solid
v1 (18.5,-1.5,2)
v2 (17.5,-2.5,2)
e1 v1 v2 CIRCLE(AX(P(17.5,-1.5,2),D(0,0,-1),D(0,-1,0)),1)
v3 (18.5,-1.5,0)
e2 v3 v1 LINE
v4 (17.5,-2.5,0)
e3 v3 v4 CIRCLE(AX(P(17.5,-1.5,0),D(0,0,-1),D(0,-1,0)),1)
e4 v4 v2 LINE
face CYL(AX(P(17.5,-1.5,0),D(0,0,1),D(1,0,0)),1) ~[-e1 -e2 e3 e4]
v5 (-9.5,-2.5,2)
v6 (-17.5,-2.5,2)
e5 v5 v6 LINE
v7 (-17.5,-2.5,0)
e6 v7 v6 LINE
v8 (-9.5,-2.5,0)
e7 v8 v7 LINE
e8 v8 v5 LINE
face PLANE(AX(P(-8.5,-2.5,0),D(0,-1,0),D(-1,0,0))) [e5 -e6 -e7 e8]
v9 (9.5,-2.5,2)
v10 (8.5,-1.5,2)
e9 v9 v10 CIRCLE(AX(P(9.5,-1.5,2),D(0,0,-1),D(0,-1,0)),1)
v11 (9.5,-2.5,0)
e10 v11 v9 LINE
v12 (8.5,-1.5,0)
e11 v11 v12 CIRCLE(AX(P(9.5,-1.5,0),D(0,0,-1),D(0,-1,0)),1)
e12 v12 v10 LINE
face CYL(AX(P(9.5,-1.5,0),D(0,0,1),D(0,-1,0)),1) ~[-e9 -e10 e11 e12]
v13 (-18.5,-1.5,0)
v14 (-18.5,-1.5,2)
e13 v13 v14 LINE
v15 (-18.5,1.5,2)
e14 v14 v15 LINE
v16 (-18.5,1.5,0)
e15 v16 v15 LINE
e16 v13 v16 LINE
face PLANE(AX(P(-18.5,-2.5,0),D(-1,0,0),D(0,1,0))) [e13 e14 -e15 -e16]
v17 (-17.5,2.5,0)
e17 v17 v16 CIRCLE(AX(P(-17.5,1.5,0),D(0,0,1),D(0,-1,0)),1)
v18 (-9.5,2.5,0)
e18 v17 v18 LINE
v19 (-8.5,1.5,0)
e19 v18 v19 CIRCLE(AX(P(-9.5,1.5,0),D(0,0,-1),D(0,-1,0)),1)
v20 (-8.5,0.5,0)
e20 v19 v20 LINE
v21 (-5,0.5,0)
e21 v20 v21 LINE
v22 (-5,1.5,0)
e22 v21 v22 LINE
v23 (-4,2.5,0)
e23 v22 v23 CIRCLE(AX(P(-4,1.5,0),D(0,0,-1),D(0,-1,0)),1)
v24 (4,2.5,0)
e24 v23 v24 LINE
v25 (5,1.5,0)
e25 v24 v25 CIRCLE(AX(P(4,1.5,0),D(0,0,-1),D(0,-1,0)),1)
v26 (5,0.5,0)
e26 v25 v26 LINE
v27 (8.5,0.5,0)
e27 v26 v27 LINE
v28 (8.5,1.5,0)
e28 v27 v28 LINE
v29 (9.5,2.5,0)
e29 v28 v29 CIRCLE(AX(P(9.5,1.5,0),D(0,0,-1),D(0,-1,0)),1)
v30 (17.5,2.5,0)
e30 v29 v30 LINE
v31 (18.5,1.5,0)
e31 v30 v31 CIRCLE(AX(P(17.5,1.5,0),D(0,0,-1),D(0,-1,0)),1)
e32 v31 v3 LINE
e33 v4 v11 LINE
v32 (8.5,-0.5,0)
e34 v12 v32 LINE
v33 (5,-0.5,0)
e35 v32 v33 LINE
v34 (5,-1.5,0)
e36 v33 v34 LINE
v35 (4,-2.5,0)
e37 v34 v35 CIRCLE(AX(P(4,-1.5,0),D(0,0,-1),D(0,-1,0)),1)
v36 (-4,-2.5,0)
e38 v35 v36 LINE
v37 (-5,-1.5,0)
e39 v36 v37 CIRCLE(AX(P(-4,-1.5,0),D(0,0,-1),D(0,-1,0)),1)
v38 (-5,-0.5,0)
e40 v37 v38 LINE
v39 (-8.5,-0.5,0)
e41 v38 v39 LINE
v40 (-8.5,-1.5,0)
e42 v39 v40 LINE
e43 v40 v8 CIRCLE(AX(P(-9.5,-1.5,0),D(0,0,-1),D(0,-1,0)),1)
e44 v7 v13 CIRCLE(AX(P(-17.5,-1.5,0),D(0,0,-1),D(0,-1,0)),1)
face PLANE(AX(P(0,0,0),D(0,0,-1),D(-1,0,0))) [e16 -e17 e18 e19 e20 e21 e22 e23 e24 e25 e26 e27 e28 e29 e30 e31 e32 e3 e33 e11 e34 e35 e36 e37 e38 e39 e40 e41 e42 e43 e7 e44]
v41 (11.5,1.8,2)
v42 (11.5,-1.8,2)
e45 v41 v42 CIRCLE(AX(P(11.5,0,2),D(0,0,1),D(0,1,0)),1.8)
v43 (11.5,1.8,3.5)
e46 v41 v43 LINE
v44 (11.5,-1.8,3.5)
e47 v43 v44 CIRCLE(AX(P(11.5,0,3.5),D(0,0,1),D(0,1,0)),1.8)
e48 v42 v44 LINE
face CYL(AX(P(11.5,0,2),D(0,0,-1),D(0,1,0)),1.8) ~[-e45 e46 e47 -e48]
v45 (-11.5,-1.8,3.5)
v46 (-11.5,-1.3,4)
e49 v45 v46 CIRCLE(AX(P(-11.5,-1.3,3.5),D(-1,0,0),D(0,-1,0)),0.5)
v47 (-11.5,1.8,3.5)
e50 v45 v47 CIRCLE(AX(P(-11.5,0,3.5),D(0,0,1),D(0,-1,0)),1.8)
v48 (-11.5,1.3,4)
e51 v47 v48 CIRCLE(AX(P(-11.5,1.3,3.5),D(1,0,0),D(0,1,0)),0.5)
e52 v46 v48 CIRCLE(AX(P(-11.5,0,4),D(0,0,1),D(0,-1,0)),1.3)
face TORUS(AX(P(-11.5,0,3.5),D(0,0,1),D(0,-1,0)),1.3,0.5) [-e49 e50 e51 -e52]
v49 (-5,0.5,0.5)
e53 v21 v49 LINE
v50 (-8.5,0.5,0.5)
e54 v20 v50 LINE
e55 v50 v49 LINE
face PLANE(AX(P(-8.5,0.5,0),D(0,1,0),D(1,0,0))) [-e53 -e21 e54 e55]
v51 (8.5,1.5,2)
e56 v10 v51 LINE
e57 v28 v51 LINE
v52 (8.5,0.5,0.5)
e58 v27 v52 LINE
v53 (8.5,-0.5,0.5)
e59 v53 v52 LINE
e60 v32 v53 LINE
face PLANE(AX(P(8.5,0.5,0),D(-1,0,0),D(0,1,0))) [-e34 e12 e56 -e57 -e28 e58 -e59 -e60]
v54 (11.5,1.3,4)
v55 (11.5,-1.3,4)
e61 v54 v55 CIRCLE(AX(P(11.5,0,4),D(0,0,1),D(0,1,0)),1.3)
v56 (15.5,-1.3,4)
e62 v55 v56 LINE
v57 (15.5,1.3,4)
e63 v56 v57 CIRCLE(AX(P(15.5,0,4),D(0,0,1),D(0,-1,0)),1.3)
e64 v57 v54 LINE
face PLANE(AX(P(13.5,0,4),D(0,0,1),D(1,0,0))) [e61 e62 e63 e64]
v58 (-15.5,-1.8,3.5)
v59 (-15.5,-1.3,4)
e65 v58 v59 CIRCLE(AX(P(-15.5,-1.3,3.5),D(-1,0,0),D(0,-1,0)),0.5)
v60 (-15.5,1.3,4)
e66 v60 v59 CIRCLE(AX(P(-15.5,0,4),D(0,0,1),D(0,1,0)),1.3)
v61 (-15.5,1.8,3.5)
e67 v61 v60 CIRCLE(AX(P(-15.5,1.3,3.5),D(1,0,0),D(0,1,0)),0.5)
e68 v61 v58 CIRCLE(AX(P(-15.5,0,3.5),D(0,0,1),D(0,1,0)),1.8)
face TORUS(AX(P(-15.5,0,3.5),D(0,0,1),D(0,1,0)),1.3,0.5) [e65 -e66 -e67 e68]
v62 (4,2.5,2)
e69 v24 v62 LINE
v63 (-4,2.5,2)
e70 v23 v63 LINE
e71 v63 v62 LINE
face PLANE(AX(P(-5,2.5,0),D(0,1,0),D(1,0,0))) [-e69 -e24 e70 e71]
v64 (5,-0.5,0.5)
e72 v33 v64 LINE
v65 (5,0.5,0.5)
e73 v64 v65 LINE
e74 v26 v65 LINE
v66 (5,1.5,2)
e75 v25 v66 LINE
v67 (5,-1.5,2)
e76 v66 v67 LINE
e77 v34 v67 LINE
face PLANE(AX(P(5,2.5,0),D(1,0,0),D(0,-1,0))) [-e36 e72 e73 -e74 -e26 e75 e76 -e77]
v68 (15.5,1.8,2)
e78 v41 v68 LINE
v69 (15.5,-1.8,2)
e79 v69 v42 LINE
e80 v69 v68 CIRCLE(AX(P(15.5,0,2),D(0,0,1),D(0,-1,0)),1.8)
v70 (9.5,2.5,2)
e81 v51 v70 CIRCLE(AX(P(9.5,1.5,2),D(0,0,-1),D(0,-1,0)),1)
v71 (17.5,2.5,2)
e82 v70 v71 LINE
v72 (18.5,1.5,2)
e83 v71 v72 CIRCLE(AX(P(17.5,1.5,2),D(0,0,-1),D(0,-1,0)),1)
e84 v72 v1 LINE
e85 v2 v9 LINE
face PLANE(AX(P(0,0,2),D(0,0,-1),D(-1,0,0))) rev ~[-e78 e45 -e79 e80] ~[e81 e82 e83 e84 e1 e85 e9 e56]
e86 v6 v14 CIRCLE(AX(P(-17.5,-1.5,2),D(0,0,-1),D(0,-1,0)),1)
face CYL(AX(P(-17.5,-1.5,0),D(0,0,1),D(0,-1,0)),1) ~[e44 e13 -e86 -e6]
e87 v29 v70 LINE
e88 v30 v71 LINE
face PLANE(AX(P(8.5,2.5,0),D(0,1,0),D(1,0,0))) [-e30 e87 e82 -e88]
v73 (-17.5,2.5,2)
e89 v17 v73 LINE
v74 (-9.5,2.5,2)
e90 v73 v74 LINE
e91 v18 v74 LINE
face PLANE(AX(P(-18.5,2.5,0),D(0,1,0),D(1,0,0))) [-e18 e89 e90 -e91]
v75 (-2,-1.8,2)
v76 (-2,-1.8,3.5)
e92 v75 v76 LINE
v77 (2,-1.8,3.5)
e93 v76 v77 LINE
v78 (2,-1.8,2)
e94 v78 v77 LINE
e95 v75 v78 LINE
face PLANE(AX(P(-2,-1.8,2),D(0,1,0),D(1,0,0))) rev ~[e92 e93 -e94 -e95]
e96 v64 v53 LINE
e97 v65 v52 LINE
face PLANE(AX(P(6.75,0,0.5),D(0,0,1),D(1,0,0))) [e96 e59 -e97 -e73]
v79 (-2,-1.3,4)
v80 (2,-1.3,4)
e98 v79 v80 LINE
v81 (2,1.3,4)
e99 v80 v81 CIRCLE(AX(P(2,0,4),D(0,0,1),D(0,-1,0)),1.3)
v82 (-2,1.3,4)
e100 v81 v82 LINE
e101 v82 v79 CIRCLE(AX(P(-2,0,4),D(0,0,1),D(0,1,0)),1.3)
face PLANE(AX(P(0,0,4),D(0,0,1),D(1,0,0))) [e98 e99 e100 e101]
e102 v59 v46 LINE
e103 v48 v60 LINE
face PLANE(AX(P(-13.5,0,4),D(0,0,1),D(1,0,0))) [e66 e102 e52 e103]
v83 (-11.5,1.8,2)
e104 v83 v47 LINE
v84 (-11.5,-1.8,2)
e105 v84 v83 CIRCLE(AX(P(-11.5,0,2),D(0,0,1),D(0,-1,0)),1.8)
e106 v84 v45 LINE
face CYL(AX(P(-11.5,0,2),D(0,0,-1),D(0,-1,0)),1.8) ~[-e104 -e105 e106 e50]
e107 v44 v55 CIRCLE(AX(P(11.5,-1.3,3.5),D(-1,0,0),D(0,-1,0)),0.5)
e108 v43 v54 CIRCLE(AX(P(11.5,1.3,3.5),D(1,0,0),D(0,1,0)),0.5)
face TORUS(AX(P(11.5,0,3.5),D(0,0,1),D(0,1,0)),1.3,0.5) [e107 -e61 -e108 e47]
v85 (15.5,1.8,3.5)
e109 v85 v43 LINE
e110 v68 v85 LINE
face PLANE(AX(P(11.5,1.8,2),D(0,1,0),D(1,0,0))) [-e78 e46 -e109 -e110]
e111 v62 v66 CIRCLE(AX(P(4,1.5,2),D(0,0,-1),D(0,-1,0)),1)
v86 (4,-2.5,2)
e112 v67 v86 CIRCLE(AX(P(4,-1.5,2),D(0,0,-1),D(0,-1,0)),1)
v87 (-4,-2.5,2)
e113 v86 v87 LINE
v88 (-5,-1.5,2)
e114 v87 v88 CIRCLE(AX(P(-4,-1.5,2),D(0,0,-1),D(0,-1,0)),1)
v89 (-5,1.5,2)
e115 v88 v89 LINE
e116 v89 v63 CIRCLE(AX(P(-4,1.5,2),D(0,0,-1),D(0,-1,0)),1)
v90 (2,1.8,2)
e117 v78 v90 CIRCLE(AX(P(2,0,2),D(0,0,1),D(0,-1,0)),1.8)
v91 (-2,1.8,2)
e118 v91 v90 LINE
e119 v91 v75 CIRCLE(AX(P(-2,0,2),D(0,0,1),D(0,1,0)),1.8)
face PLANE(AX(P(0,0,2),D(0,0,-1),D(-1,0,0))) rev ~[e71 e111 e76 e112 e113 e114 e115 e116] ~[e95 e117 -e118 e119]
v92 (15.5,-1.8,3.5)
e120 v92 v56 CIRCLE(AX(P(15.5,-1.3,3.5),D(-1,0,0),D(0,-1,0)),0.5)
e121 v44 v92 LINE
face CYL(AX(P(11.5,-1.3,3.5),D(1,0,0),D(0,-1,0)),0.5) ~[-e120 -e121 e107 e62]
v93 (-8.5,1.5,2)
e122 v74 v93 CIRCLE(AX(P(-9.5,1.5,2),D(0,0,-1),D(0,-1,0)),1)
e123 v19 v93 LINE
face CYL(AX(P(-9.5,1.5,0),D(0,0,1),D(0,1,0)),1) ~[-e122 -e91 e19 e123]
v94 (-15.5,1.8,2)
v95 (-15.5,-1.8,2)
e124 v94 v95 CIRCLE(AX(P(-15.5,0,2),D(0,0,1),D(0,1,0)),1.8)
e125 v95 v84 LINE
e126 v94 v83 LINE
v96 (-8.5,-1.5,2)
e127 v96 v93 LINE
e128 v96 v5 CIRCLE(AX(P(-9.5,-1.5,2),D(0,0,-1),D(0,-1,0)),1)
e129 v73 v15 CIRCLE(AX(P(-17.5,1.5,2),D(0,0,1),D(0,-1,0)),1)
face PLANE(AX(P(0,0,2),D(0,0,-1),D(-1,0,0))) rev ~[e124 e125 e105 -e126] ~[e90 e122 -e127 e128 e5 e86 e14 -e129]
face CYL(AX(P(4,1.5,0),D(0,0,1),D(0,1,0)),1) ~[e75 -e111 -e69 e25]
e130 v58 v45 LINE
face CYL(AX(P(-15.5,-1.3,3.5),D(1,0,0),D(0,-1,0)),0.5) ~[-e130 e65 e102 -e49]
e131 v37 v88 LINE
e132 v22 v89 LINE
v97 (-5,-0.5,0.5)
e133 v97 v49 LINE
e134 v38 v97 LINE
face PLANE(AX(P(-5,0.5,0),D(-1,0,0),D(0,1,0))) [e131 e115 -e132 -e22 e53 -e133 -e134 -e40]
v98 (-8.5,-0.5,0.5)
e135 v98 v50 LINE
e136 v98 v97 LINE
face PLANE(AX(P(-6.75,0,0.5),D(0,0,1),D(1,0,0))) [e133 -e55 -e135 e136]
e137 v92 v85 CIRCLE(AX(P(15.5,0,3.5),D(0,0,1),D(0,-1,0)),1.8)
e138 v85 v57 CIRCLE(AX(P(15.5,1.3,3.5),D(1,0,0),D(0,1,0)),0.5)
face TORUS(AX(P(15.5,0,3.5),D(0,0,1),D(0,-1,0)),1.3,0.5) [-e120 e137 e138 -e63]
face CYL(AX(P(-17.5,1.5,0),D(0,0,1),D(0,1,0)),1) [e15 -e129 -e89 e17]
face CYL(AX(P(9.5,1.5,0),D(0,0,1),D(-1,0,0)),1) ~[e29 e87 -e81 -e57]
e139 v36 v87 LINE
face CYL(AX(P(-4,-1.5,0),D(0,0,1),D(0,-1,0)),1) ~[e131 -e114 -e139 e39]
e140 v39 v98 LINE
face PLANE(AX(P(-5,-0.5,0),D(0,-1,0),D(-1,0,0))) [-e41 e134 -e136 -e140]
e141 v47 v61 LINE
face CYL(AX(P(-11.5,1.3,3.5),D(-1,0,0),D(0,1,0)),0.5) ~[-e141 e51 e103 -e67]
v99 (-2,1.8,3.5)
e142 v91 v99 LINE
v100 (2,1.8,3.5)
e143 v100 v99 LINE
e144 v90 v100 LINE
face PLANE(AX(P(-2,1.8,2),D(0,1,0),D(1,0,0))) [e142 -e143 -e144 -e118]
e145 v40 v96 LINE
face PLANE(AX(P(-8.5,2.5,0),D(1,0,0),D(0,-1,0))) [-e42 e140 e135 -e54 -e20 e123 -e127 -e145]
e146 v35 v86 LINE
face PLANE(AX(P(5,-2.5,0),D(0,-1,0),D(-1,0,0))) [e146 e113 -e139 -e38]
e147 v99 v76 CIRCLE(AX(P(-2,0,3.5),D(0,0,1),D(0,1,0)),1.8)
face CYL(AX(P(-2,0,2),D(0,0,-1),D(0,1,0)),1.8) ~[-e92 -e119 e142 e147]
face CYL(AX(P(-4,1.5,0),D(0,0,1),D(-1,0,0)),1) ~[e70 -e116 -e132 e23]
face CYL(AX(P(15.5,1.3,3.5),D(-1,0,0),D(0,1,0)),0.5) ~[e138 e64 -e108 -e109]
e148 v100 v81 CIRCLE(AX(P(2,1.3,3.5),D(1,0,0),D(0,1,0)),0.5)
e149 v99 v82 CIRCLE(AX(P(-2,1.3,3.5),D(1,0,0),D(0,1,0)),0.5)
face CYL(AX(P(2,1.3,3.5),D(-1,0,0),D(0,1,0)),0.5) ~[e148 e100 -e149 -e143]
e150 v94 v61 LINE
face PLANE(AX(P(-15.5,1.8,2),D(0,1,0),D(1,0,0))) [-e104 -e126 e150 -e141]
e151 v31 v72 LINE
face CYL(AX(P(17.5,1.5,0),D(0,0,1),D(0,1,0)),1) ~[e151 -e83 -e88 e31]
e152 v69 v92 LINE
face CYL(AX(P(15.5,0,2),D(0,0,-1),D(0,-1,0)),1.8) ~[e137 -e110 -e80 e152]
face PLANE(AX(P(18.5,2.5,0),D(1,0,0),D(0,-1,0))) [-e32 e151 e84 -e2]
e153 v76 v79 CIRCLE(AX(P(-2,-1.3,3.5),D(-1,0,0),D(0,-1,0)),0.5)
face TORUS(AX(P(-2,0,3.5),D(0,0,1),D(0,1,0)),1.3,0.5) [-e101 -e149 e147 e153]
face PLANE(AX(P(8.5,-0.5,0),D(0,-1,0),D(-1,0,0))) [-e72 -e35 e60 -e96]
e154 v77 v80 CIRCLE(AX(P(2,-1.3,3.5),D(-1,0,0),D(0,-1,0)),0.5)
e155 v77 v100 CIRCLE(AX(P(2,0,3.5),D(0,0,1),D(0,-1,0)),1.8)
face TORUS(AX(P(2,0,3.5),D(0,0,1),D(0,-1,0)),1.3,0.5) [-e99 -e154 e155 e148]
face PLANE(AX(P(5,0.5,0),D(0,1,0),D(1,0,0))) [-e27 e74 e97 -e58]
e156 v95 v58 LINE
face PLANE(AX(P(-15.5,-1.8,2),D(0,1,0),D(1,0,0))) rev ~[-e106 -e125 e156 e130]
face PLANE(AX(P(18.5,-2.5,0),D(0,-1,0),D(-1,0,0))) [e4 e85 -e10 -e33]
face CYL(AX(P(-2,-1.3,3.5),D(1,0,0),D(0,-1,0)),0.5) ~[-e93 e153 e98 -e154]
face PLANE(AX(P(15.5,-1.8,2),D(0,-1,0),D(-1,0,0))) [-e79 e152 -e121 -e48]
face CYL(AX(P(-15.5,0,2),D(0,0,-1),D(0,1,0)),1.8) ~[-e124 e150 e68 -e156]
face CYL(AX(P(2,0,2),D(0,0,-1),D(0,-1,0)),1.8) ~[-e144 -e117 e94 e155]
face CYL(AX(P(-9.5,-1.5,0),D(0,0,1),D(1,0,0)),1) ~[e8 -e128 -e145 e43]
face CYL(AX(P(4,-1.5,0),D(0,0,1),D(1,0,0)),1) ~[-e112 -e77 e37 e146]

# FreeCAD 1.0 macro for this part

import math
import FreeCAD as App
import Part
import Sketcher


def edges_at(feature, points):
    """Names of the edges that pass closest to the given points."""
    edges = feature.Shape.Edges
    near = lambda p: min(range(len(edges)), key=lambda i: edges[i].distToShape(Part.Vertex(*p))[0])
    return sorted({f"Edge{near(p) + 1}" for p in points})


def add_polygon(sketch, points):
    """Adds a closed chain of lines whose ends are joined by coincident constraints."""
    first, n = sketch.GeometryCount, len(points)
    for a, b in zip(points, points[1:] + points[:1]):
        sketch.addGeometry(Part.LineSegment(App.Vector(*a, 0), App.Vector(*b, 0)), False)
    for i in range(n):
        sketch.addConstraint(Sketcher.Constraint("Coincident", first + i, 2, first + (i + 1) % n, 1))

doc = App.newDocument("Part")
body = doc.addObject("PartDesign::Body", "Body")

sketch1 = body.newObject("Sketcher::SketchObject", "Sketch")
sketch1.AttachmentSupport = (doc.getObject("XY_Plane"), [""])
sketch1.MapMode = "FlatFace"
add_polygon(sketch1, [(-8.5, 2.5), (-18.5, 2.5), (-18.5, -2.5), (-8.5, -2.5), (-8.5, -0.5), (-5, -0.5), (-5, -2.5), (5, -2.5), (5, -0.5), (8.5, -0.5), (8.5, -2.5), (18.5, -2.5), (18.5, 2.5), (8.5, 2.5), (8.5, 0.5), (5, 0.5), (5, 2.5), (-5, 2.5), (-5, 0.5), (-8.5, 0.5)])
sketch1.addConstraint(Sketcher.Constraint("Horizontal", 0))
sketch1.addConstraint(Sketcher.Constraint("Vertical", 1))
sketch1.addConstraint(Sketcher.Constraint("Horizontal", 2))
sketch1.addConstraint(Sketcher.Constraint("Vertical", 3))
sketch1.addConstraint(Sketcher.Constraint("Horizontal", 4))
sketch1.addConstraint(Sketcher.Constraint("Vertical", 5))
sketch1.addConstraint(Sketcher.Constraint("Horizontal", 6))
sketch1.addConstraint(Sketcher.Constraint("Vertical", 7))
sketch1.addConstraint(Sketcher.Constraint("Horizontal", 8))
sketch1.addConstraint(Sketcher.Constraint("Vertical", 9))
sketch1.addConstraint(Sketcher.Constraint("Horizontal", 10))
sketch1.addConstraint(Sketcher.Constraint("Vertical", 11))
sketch1.addConstraint(Sketcher.Constraint("Horizontal", 12))
sketch1.addConstraint(Sketcher.Constraint("Vertical", 13))
sketch1.addConstraint(Sketcher.Constraint("Horizontal", 14))
sketch1.addConstraint(Sketcher.Constraint("Vertical", 15))
sketch1.addConstraint(Sketcher.Constraint("Horizontal", 16))
sketch1.addConstraint(Sketcher.Constraint("Vertical", 17))
sketch1.addConstraint(Sketcher.Constraint("Horizontal", 18))
sketch1.addConstraint(Sketcher.Constraint("Vertical", 19))
sketch1.addConstraint(Sketcher.Constraint("Symmetric", 0, 2, 10, 2, -1, 1))
sketch1.addConstraint(Sketcher.Constraint("Symmetric", 2, 2, 12, 2, -1, 1))
sketch1.addConstraint(Sketcher.Constraint("Symmetric", 4, 2, 14, 2, -1, 1))
sketch1.addConstraint(Sketcher.Constraint("Symmetric", 6, 2, 16, 2, -1, 1))
sketch1.addConstraint(Sketcher.Constraint("Symmetric", 8, 2, 18, 2, -1, 1))
sketch1.addConstraint(Sketcher.Constraint("Symmetric", 4, 2, 7, 2, -2))
sketch1.addConstraint(Sketcher.Constraint("Symmetric", 2, 2, 9, 2, -2))
sketch1.addConstraint(Sketcher.Constraint("Horizontal", 2, 2, 5, 2))
sketch1.addConstraint(Sketcher.Constraint("Equal", 2, 6))
sketch1.addConstraint(Sketcher.Constraint("DistanceX", 0, 2, 0, 1, 10.0))
sketch1.addConstraint(Sketcher.Constraint("DistanceY", 1, 2, 1, 1, 5.0))
sketch1.addConstraint(Sketcher.Constraint("DistanceY", 3, 1, 3, 2, 2.0))
sketch1.addConstraint(Sketcher.Constraint("DistanceX", 4, 1, 4, 2, 3.5))
pad1 = body.newObject("PartDesign::Pad", "Pad")
pad1.Profile = sketch1
pad1.Length = 2
doc.recompute()

fillet = body.newObject("PartDesign::Fillet", "Fillet")
fillet.Base = (pad1, edges_at(pad1, [
    (-18.5, 2.5, 1),
    (-5, 2.5, 1),
    (8.5, 2.5, 1),
    (-18.5, -2.5, 1),
    (-5, -2.5, 1),
    (8.5, -2.5, 1),
    (-8.5, 2.5, 1),
    (-8.5, -2.5, 1),
    (5, 2.5, 1),
    (5, -2.5, 1),
    (18.5, 2.5, 1),
    (18.5, -2.5, 1),
]))
fillet.Radius = 1

sketch2 = body.newObject("Sketcher::SketchObject", "Sketch001")
sketch2.AttachmentSupport = (doc.getObject("XY_Plane"), [""])
sketch2.MapMode = "FlatFace"
sketch2.AttachmentOffset = App.Placement(App.Vector(0, 0, 2), App.Rotation())
add_polygon(sketch2, [(-8.5, 0.5), (-8.5, -0.5), (-5, -0.5), (-5, 0.5)])
add_polygon(sketch2, [(5, 0.5), (5, -0.5), (8.5, -0.5), (8.5, 0.5)])
sketch2.addConstraint(Sketcher.Constraint("Vertical", 0))
sketch2.addConstraint(Sketcher.Constraint("Horizontal", 1))
sketch2.addConstraint(Sketcher.Constraint("Vertical", 2))
sketch2.addConstraint(Sketcher.Constraint("Horizontal", 3))
sketch2.addConstraint(Sketcher.Constraint("Vertical", 4))
sketch2.addConstraint(Sketcher.Constraint("Horizontal", 5))
sketch2.addConstraint(Sketcher.Constraint("Vertical", 6))
sketch2.addConstraint(Sketcher.Constraint("Horizontal", 7))
sketch2.addConstraint(Sketcher.Constraint("Symmetric", 2, 2, 4, 2, -1, 1))
sketch2.addConstraint(Sketcher.Constraint("Symmetric", 0, 2, 6, 2, -1, 1))
sketch2.addConstraint(Sketcher.Constraint("Horizontal", 1, 2, 4, 2))
sketch2.addConstraint(Sketcher.Constraint("DistanceY", 0, 2, 0, 1, 1.0))
sketch2.addConstraint(Sketcher.Constraint("DistanceX", 1, 1, 1, 2, 3.5))
sketch2.addConstraint(Sketcher.Constraint("DistanceX", 1, 2, -1, 1, 5.0))
pocket1 = body.newObject("PartDesign::Pocket", "Pocket")
pocket1.Profile = sketch2
pocket1.Length = 1.5

sketch3 = body.newObject("Sketcher::SketchObject", "Sketch002")
sketch3.AttachmentSupport = (doc.getObject("XY_Plane"), [""])
sketch3.MapMode = "FlatFace"
sketch3.AttachmentOffset = App.Placement(App.Vector(0, 0, 2), App.Rotation())
sketch3.addGeometry(Part.ArcOfCircle(Part.Circle(App.Vector(-15.5, 0, 0), App.Vector(0, 0, 1), 1.8), math.radians(90), math.radians(270)), False)
sketch3.addGeometry(Part.LineSegment(App.Vector(-15.5, -1.8, 0), App.Vector(-11.5, -1.8, 0)), False)
sketch3.addGeometry(Part.ArcOfCircle(Part.Circle(App.Vector(-11.5, 0, 0), App.Vector(0, 0, 1), 1.8), math.radians(-90), math.radians(90)), False)
sketch3.addGeometry(Part.LineSegment(App.Vector(-11.5, 1.8, 0), App.Vector(-15.5, 1.8, 0)), False)
sketch3.addGeometry(Part.ArcOfCircle(Part.Circle(App.Vector(-2, 0, 0), App.Vector(0, 0, 1), 1.8), math.radians(90), math.radians(270)), False)
sketch3.addGeometry(Part.LineSegment(App.Vector(-2, -1.8, 0), App.Vector(2, -1.8, 0)), False)
sketch3.addGeometry(Part.ArcOfCircle(Part.Circle(App.Vector(2, 0, 0), App.Vector(0, 0, 1), 1.8), math.radians(-90), math.radians(90)), False)
sketch3.addGeometry(Part.LineSegment(App.Vector(2, 1.8, 0), App.Vector(-2, 1.8, 0)), False)
sketch3.addGeometry(Part.ArcOfCircle(Part.Circle(App.Vector(11.5, 0, 0), App.Vector(0, 0, 1), 1.8), math.radians(90), math.radians(270)), False)
sketch3.addGeometry(Part.LineSegment(App.Vector(11.5, -1.8, 0), App.Vector(15.5, -1.8, 0)), False)
sketch3.addGeometry(Part.ArcOfCircle(Part.Circle(App.Vector(15.5, 0, 0), App.Vector(0, 0, 1), 1.8), math.radians(-90), math.radians(90)), False)
sketch3.addGeometry(Part.LineSegment(App.Vector(15.5, 1.8, 0), App.Vector(11.5, 1.8, 0)), False)
sketch3.addConstraint(Sketcher.Constraint("Tangent", 0, 2, 1, 1))
sketch3.addConstraint(Sketcher.Constraint("Tangent", 1, 2, 2, 1))
sketch3.addConstraint(Sketcher.Constraint("Tangent", 2, 2, 3, 1))
sketch3.addConstraint(Sketcher.Constraint("Tangent", 3, 2, 0, 1))
sketch3.addConstraint(Sketcher.Constraint("Tangent", 4, 2, 5, 1))
sketch3.addConstraint(Sketcher.Constraint("Tangent", 5, 2, 6, 1))
sketch3.addConstraint(Sketcher.Constraint("Tangent", 6, 2, 7, 1))
sketch3.addConstraint(Sketcher.Constraint("Tangent", 7, 2, 4, 1))
sketch3.addConstraint(Sketcher.Constraint("Tangent", 8, 2, 9, 1))
sketch3.addConstraint(Sketcher.Constraint("Tangent", 9, 2, 10, 1))
sketch3.addConstraint(Sketcher.Constraint("Tangent", 10, 2, 11, 1))
sketch3.addConstraint(Sketcher.Constraint("Tangent", 11, 2, 8, 1))
sketch3.addConstraint(Sketcher.Constraint("Horizontal", 1))
sketch3.addConstraint(Sketcher.Constraint("Horizontal", 3))
sketch3.addConstraint(Sketcher.Constraint("Horizontal", 5))
sketch3.addConstraint(Sketcher.Constraint("Horizontal", 7))
sketch3.addConstraint(Sketcher.Constraint("Horizontal", 9))
sketch3.addConstraint(Sketcher.Constraint("Horizontal", 11))
sketch3.addConstraint(Sketcher.Constraint("Equal", 2, 4))
sketch3.addConstraint(Sketcher.Constraint("Equal", 6, 8))
sketch3.addConstraint(Sketcher.Constraint("Symmetric", 4, 3, 6, 3, -1, 1))
sketch3.addConstraint(Sketcher.Constraint("Symmetric", 2, 3, 8, 3, -1, 1))
sketch3.addConstraint(Sketcher.Constraint("Symmetric", 0, 3, 10, 3, -2))
sketch3.addConstraint(Sketcher.Constraint("Equal", 3, 5))
sketch3.addConstraint(Sketcher.Constraint("Radius", 0, 1.8))
sketch3.addConstraint(Sketcher.Constraint("DistanceX", 1, 1, 1, 2, 4.0))
sketch3.addConstraint(Sketcher.Constraint("DistanceX", 2, 3, 8, 3, 23.0))
pad2 = body.newObject("PartDesign::Pad", "Pad001")
pad2.Profile = sketch3
pad2.Length = 2
doc.recompute()

fillet2 = body.newObject("PartDesign::Fillet", "Fillet001")
fillet2.Base = (pad2, edges_at(pad2, [
    (-17.3, 0, 4),
    (-13.5, -1.8, 4),
    (-9.7, 0, 4),
    (-13.5, 1.8, 4),
    (-3.8, 0, 4),
    (0, -1.8, 4),
    (3.8, 0, 4),
    (0, 1.8, 4),
    (17.3, 0, 4),
    (13.5, 1.8, 4),
    (9.7, 0, 4),
    (13.5, -1.8, 4),
]))
fillet2.Radius = 0.5

doc.recompute()
